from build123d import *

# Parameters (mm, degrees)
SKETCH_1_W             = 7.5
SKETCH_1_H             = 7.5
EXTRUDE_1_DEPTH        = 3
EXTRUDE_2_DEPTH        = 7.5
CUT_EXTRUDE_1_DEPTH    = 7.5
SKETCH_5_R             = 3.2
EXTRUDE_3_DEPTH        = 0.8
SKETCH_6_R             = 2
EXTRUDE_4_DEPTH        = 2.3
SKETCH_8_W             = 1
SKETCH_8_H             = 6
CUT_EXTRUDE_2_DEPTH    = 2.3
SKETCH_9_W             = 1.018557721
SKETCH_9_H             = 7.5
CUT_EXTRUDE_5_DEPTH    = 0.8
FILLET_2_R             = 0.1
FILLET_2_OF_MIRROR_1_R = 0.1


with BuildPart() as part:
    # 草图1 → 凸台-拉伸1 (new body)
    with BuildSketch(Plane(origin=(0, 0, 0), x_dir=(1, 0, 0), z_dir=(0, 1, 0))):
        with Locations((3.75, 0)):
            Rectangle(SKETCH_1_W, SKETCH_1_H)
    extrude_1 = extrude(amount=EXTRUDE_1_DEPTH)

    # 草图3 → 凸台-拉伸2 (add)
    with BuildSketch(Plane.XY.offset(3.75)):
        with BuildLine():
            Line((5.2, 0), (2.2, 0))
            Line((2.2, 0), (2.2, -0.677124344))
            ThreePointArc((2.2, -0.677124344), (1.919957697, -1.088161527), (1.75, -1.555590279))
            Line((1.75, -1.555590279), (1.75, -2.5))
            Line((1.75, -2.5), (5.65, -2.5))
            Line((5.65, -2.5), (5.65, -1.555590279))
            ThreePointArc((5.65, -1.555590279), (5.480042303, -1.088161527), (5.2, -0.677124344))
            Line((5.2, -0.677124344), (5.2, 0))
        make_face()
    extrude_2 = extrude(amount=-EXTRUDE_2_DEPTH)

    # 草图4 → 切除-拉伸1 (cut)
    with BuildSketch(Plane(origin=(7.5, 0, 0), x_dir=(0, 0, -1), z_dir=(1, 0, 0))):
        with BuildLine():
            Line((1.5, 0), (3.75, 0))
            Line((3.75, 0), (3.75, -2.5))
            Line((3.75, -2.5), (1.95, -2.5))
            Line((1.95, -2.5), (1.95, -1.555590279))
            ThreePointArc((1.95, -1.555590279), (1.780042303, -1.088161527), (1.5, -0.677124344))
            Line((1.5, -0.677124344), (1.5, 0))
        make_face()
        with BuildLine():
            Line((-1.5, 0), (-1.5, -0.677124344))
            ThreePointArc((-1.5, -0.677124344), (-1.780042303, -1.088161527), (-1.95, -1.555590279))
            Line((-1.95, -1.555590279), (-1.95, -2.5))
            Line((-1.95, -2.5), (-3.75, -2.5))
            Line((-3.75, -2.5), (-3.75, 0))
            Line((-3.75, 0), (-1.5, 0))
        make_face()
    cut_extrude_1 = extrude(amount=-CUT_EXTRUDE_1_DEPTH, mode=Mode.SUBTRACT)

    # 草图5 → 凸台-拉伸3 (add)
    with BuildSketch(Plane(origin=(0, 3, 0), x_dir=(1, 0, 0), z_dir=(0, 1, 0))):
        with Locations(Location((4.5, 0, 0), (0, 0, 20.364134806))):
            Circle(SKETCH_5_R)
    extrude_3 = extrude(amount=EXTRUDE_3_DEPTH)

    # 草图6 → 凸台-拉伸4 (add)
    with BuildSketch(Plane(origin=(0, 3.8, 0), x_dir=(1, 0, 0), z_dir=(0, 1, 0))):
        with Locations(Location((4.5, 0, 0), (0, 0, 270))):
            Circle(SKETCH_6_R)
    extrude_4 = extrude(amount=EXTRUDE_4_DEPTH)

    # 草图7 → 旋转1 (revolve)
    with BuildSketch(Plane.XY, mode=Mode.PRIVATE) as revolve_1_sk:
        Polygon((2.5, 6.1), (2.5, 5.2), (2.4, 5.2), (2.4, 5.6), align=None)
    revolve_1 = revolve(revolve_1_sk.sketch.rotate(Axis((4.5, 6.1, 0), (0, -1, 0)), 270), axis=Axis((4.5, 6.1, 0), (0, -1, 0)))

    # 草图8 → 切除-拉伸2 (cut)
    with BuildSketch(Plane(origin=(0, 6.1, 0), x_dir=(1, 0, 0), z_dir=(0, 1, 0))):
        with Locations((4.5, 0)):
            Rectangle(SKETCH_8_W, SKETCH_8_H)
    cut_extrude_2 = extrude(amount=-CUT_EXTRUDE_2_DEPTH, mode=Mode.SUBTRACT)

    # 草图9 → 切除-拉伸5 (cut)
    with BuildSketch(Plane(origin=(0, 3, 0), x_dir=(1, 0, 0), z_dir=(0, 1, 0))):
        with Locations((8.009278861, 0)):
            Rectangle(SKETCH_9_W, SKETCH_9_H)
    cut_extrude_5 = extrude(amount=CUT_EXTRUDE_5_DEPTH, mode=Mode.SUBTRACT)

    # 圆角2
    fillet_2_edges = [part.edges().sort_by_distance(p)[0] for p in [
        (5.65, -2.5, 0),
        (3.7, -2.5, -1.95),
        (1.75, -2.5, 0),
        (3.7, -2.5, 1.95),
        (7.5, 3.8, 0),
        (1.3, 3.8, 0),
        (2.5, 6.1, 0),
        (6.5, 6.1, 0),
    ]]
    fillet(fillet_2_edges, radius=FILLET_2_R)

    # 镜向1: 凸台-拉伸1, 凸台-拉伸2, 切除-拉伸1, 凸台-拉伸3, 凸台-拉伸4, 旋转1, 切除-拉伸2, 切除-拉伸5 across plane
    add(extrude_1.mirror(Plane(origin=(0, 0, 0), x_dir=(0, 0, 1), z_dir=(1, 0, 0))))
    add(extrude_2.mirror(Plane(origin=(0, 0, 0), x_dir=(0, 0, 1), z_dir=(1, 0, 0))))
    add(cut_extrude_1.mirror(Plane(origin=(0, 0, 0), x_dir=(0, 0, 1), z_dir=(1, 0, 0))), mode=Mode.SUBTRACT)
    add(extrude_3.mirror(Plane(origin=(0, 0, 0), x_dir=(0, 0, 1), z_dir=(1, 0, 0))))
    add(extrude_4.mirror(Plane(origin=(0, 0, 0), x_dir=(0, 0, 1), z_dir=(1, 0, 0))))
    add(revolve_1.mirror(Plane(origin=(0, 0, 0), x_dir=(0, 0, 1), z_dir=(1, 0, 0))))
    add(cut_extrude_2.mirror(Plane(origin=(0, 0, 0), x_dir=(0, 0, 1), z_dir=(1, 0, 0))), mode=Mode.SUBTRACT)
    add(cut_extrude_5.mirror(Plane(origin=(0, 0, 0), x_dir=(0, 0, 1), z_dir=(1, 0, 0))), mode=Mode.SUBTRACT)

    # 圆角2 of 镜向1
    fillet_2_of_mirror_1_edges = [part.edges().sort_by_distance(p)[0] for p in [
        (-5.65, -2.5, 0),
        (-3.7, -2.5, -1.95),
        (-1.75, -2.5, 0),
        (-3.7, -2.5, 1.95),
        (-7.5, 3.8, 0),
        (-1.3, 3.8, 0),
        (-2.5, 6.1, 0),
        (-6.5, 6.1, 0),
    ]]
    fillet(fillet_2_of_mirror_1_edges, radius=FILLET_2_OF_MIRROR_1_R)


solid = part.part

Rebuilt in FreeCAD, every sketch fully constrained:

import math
import FreeCAD as App
import Part
import Sketcher
Q = App.Units.Quantity


def edges_at(feature, points):
    """Names of the edges that pass closest to the given points."""
    edges = feature.Shape.Edges
    near = lambda p: min(range(len(edges)), key=lambda i: edges[i].distToShape(Part.Vertex(*p))[0])
    return sorted({f"Edge{near(p) + 1}" for p in points})


def add_polygon(sketch, points):
    """Adds a closed chain of lines whose ends are joined by coincident constraints."""
    first, n = sketch.GeometryCount, len(points)
    for a, b in zip(points, points[1:] + points[:1]):
        sketch.addGeometry(Part.LineSegment(App.Vector(*a, 0), App.Vector(*b, 0)), False)
    for i in range(n):
        sketch.addConstraint(Sketcher.Constraint("Coincident", first + i, 2, first + (i + 1) % n, 1))

doc = App.newDocument("Part")
params = doc.addObject("Spreadsheet::Sheet", "Params")
for row, (alias, value) in enumerate([
    ("sketch1_width", "7.5 mm"),
    ("pad1_length", "3 mm"),
    ("sketch2_radius", "2 mm"),
    ("sketch2_width", "3 mm"),
    ("sketch2_width2", "3.9 mm"),
    ("pad2_length", "7.5 mm"),
    ("sketch3_radius", "2 mm"),
    ("sketch3_width", "2.5 mm"),
    ("sketch3_height", "1.8 mm"),
    ("sketch3_height2", "2.25 mm"),
    ("pocket1_length", "7.5 mm"),
    ("sketch4_diameter", "6.4 mm"),
    ("pad3_length", "0.8 mm"),
    ("sketch5_diameter", "4 mm"),
    ("pad4_length", "2.3 mm"),
    ("sketch6_width", "0.1 mm"),
    ("sketch6_height", "0.9 mm"),
    ("sketch6_height2", "0.4 mm"),
    ("revolution_angle", "360 deg"),
    ("sketch7_width", "1 mm"),
    ("sketch7_height", "6 mm"),
    ("pocket2_length", "2.3 mm"),
    ("sketch8_height", "7.5 mm"),
    ("pocket3_length", "0.8 mm"),
    ("fillet_radius", "0.1 mm"),
    ("fillet2_radius", "0.1 mm"),
], start=1):
    params.set(f"A{row}", alias)
    params.set(f"B{row}", "=" + value)
    params.setAlias(f"B{row}", alias)

body = doc.addObject("PartDesign::Body", "Body")

sketch1 = body.newObject("Sketcher::SketchObject", "Sketch")
sketch1.AttachmentSupport = (doc.getObject("XZ_Plane"), [""])
sketch1.MapMode = "FlatFace"
add_polygon(sketch1, [(0, -4), (0, 4), (8, 4), (8, -4)])
sketch1.addConstraint([
    Sketcher.Constraint("Vertical", 0),
    Sketcher.Constraint("Horizontal", 1),
    Sketcher.Constraint("Vertical", 2),
    Sketcher.Constraint("Horizontal", 3),
    Sketcher.Constraint("Symmetric", 0, 2, 3, 2, -1, 1),
    Sketcher.Constraint("Equal", 3, 0),
    Sketcher.Constraint("DistanceX", 1, 1, 1, 2, Q("7.5 mm")),
])
sketch1.setExpression("Constraints[10]", "Params.sketch1_width")
pad1 = body.newObject("PartDesign::Pad", "Pad")
pad1.Profile = sketch1
pad1.setExpression("Length", "Params.pad1_length")
pad1.Reversed = True

sketch2 = body.newObject("Sketcher::SketchObject", "Sketch001")
sketch2.AttachmentSupport = (doc.getObject("XY_Plane"), [""])
sketch2.MapMode = "FlatFace"
sketch2.AttachmentOffset = App.Placement(App.Vector(0, 0, 3.75), App.Rotation())
sketch2.addGeometry([
    Part.LineSegment(App.Vector(5.2, 0, 0), App.Vector(2.2, 0, 0)),
    Part.LineSegment(App.Vector(2.2, 0, 0), App.Vector(2.2, -0.7, 0)),
    Part.ArcOfCircle(Part.Circle(App.Vector(3.7, -2, 0), App.Vector(0, 0, 1), 2), math.radians(139), math.radians(167)),
    Part.LineSegment(App.Vector(1.8, -1.6, 0), App.Vector(1.8, -2.5, 0)),
    Part.LineSegment(App.Vector(1.8, -2.5, 0), App.Vector(5.7, -2.5, 0)),
    Part.LineSegment(App.Vector(5.7, -2.5, 0), App.Vector(5.7, -1.6, 0)),
    Part.ArcOfCircle(Part.Circle(App.Vector(3.7, -2, 0), App.Vector(0, 0, 1), 2), math.radians(13), math.radians(41)),
    Part.LineSegment(App.Vector(5.2, -0.7, 0), App.Vector(5.2, 0, 0)),
], False)
sketch2.addConstraint([
    Sketcher.Constraint("Coincident", 0, 2, 1, 1),
    Sketcher.Constraint("Coincident", 1, 2, 2, 1),
    Sketcher.Constraint("Coincident", 2, 2, 3, 1),
    Sketcher.Constraint("Coincident", 3, 2, 4, 1),
    Sketcher.Constraint("Coincident", 4, 2, 5, 1),
    Sketcher.Constraint("Coincident", 5, 2, 6, 1),
    Sketcher.Constraint("Coincident", 6, 2, 7, 1),
    Sketcher.Constraint("Coincident", 7, 2, 0, 1),
    Sketcher.Constraint("Horizontal", 0),
    Sketcher.Constraint("Vertical", 1),
    Sketcher.Constraint("Vertical", 3),
    Sketcher.Constraint("Horizontal", 4),
    Sketcher.Constraint("Vertical", 5),
    Sketcher.Constraint("Vertical", 7),
    Sketcher.Constraint("Coincident", 6, 3, 2, 3),
    Sketcher.Constraint("Equal", 2, 6),
    Sketcher.Constraint("PointOnObject", 0, 2, -1),
    Sketcher.Constraint("Horizontal", 2, 2, 5, 2),
    Sketcher.Constraint("Horizontal", 1, 2, 6, 2),
    Sketcher.Constraint("Radius", 2, Q("2 mm")),
    Sketcher.Constraint("DistanceX", 0, 2, 0, 1, Q("3 mm")),
    Sketcher.Constraint("DistanceX", 4, 1, 4, 2, Q("3.9 mm")),
    Sketcher.Constraint("DistanceY", 2, 3, -1, 1, Q("2 mm")),
    Sketcher.Constraint("DistanceX", -1, 1, 2, 3, Q("3.7 mm")),
    Sketcher.Constraint("DistanceY", 3, 2, -1, 1, Q("2.5 mm")),
])
sketch2.setExpression("Constraints[19]", "Params.sketch2_radius")
sketch2.setExpression("Constraints[20]", "Params.sketch2_width")
sketch2.setExpression("Constraints[21]", "Params.sketch2_width2")
pad2 = body.newObject("PartDesign::Pad", "Pad001")
pad2.Profile = sketch2
pad2.setExpression("Length", "Params.pad2_length")
pad2.Reversed = True

sketch3 = body.newObject("Sketcher::SketchObject", "Sketch002")
sketch3.AttachmentSupport = (doc.getObject("YZ_Plane"), [""])
sketch3.MapMode = "FlatFace"
sketch3.AttachmentOffset = App.Placement(App.Vector(0, 0, 7.5), App.Rotation())
sketch3.addGeometry([
    Part.LineSegment(App.Vector(0, -3.8, 0), App.Vector(0, -1.5, 0)),
    Part.LineSegment(App.Vector(0, -1.5, 0), App.Vector(-0.7, -1.5, 0)),
    Part.ArcOfCircle(Part.Circle(App.Vector(-2, 0, 0), App.Vector(0, 0, 1), 2), math.radians(-77), math.radians(-49)),
    Part.LineSegment(App.Vector(-1.6, -1.9, 0), App.Vector(-2.5, -1.9, 0)),
    Part.LineSegment(App.Vector(-2.5, -1.9, 0), App.Vector(-2.5, -3.8, 0)),
    Part.LineSegment(App.Vector(-2.5, -3.8, 0), App.Vector(0, -3.8, 0)),
    Part.LineSegment(App.Vector(-0.7, 1.5, 0), App.Vector(0, 1.5, 0)),
    Part.LineSegment(App.Vector(0, 1.5, 0), App.Vector(0, 3.8, 0)),
    Part.LineSegment(App.Vector(0, 3.8, 0), App.Vector(-2.5, 3.8, 0)),
    Part.LineSegment(App.Vector(-2.5, 3.8, 0), App.Vector(-2.5, 1.9, 0)),
    Part.LineSegment(App.Vector(-2.5, 1.9, 0), App.Vector(-1.6, 1.9, 0)),
    Part.ArcOfCircle(Part.Circle(App.Vector(-2, 0, 0), App.Vector(0, 0, 1), 2), math.radians(49), math.radians(77)),
], False)
sketch3.addConstraint([
    Sketcher.Constraint("Coincident", 0, 2, 1, 1),
    Sketcher.Constraint("Coincident", 1, 2, 2, 2),
    Sketcher.Constraint("Coincident", 2, 1, 3, 1),
    Sketcher.Constraint("Coincident", 3, 2, 4, 1),
    Sketcher.Constraint("Coincident", 4, 2, 5, 1),
    Sketcher.Constraint("Coincident", 5, 2, 0, 1),
    Sketcher.Constraint("Coincident", 6, 2, 7, 1),
    Sketcher.Constraint("Coincident", 7, 2, 8, 1),
    Sketcher.Constraint("Coincident", 8, 2, 9, 1),
    Sketcher.Constraint("Coincident", 9, 2, 10, 1),
    Sketcher.Constraint("Coincident", 10, 2, 11, 2),
    Sketcher.Constraint("Coincident", 11, 1, 6, 1),
    Sketcher.Constraint("Vertical", 0),
    Sketcher.Constraint("Horizontal", 1),
    Sketcher.Constraint("Horizontal", 3),
    Sketcher.Constraint("Vertical", 4),
    Sketcher.Constraint("Horizontal", 5),
    Sketcher.Constraint("Horizontal", 6),
    Sketcher.Constraint("Vertical", 7),
    Sketcher.Constraint("Horizontal", 8),
    Sketcher.Constraint("Vertical", 9),
    Sketcher.Constraint("Horizontal", 10),
    Sketcher.Constraint("Coincident", 11, 3, 2, 3),
    Sketcher.Constraint("Equal", 2, 11),
    Sketcher.Constraint("Symmetric", 0, 2, 6, 2, -1, 1),
    Sketcher.Constraint("Symmetric", 5, 2, 7, 2, -1),
    Sketcher.Constraint("Symmetric", 3, 2, 9, 2, -1),
    Sketcher.Constraint("PointOnObject", 2, 3, -1),
    Sketcher.Constraint("Radius", 2, Q("2 mm")),
    Sketcher.Constraint("DistanceX", 5, 1, 5, 2, Q("2.5 mm")),
    Sketcher.Constraint("DistanceY", 4, 2, 4, 1, Q("1.8 mm")),
    Sketcher.Constraint("DistanceX", 2, 3, -1, 1, Q("2 mm")),
    Sketcher.Constraint("DistanceY", 0, 2, 6, 2, Q("3 mm")),
    Sketcher.Constraint("DistanceY", 0, 1, 0, 2, Q("2.25 mm")),
])
sketch3.setExpression("Constraints[28]", "Params.sketch3_radius")
sketch3.setExpression("Constraints[29]", "Params.sketch3_width")
sketch3.setExpression("Constraints[30]", "Params.sketch3_height")
sketch3.setExpression("Constraints[33]", "Params.sketch3_height2")
pocket1 = body.newObject("PartDesign::Pocket", "Pocket")
pocket1.Profile = sketch3
pocket1.setExpression("Length", "Params.pocket1_length")

sketch4 = body.newObject("Sketcher::SketchObject", "Sketch003")
sketch4.AttachmentSupport = (doc.getObject("XZ_Plane"), [""])
sketch4.MapMode = "FlatFace"
sketch4.AttachmentOffset = App.Placement(App.Vector(0, 0, -3), App.Rotation())
sketch4.addGeometry(Part.Circle(App.Vector(4.5, 0, 0), App.Vector(0, 0, 1), 3.2), False)
sketch4.addConstraint([
    Sketcher.Constraint("PointOnObject", 0, 3, -1),
    Sketcher.Constraint("Diameter", 0, Q("6.4 mm")),
    Sketcher.Constraint("DistanceX", -1, 1, 0, 3, Q("4.5 mm")),
])
sketch4.setExpression("Constraints[1]", "Params.sketch4_diameter")
pad3 = body.newObject("PartDesign::Pad", "Pad002")
pad3.Profile = sketch4
pad3.setExpression("Length", "Params.pad3_length")
pad3.Reversed = True

sketch5 = body.newObject("Sketcher::SketchObject", "Sketch004")
sketch5.AttachmentSupport = (doc.getObject("XZ_Plane"), [""])
sketch5.MapMode = "FlatFace"
sketch5.AttachmentOffset = App.Placement(App.Vector(0, 0, -3.8), App.Rotation())
sketch5.addGeometry(Part.Circle(App.Vector(4.5, 0, 0), App.Vector(0, 0, 1), 2), False)
sketch5.addConstraint([
    Sketcher.Constraint("PointOnObject", 0, 3, -1),
    Sketcher.Constraint("Diameter", 0, Q("4 mm")),
    Sketcher.Constraint("DistanceX", -1, 1, 0, 3, Q("4.5 mm")),
])
sketch5.setExpression("Constraints[1]", "Params.sketch5_diameter")
pad4 = body.newObject("PartDesign::Pad", "Pad003")
pad4.Profile = sketch5
pad4.setExpression("Length", "Params.pad4_length")
pad4.Reversed = True

sketch6 = body.newObject("Sketcher::SketchObject", "Sketch005")
sketch6.AttachmentSupport = (doc.getObject("XY_Plane"), [""])
sketch6.MapMode = "FlatFace"
add_polygon(sketch6, [(2.5, 5.2), (2.5, 6.1), (2.4, 5.6), (2.4, 5.2)])
sketch6.addGeometry(Part.LineSegment(App.Vector(4.5, 6.1, 0), App.Vector(4.5, 5.2, 0)), True)
sketch6.addConstraint([
    Sketcher.Constraint("Vertical", 0),
    Sketcher.Constraint("Vertical", 2),
    Sketcher.Constraint("Horizontal", 3),
    Sketcher.Constraint("Vertical", 4),
    Sketcher.Constraint("Horizontal", 0, 2, 4, 1),
    Sketcher.Constraint("Horizontal", 3, 2, 4, 2),
    Sketcher.Constraint("DistanceX", 3, 1, 3, 2, Q("0.1 mm")),
    Sketcher.Constraint("DistanceY", 0, 1, 0, 2, Q("0.9 mm")),
    Sketcher.Constraint("DistanceY", 2, 2, 2, 1, Q("0.4 mm")),
    Sketcher.Constraint("DistanceX", 0, 2, 4, 1, Q("2 mm")),
    Sketcher.Constraint("DistanceX", -1, 1, 0, 2, Q("2.5 mm")),
    Sketcher.Constraint("DistanceY", -1, 1, 0, 2, Q("6.1 mm")),
])
sketch6.setExpression("Constraints[10]", "Params.sketch6_width")
sketch6.setExpression("Constraints[11]", "Params.sketch6_height")
sketch6.setExpression("Constraints[12]", "Params.sketch6_height2")
revolution = body.newObject("PartDesign::Revolution", "Revolution")
revolution.Profile = sketch6
revolution.ReferenceAxis = (sketch6, ["Axis0"])
revolution.setExpression("Angle", "Params.revolution_angle")

sketch7 = body.newObject("Sketcher::SketchObject", "Sketch006")
sketch7.AttachmentSupport = (doc.getObject("XZ_Plane"), [""])
sketch7.MapMode = "FlatFace"
sketch7.AttachmentOffset = App.Placement(App.Vector(0, 0, -6.1), App.Rotation())
add_polygon(sketch7, [(4, -3), (4, 3), (5, 3), (5, -3)])
sketch7.addConstraint([
    Sketcher.Constraint("Vertical", 0),
    Sketcher.Constraint("Horizontal", 1),
    Sketcher.Constraint("Vertical", 2),
    Sketcher.Constraint("Horizontal", 3),
    Sketcher.Constraint("DistanceX", 1, 1, 1, 2, Q("1 mm")),
    Sketcher.Constraint("DistanceY", 0, 1, 0, 2, Q("6 mm")),
    Sketcher.Constraint("DistanceX", -1, 1, 0, 2, Q("4 mm")),
    Sketcher.Constraint("DistanceY", -1, 1, 0, 2, Q("3 mm")),
])
sketch7.setExpression("Constraints[8]", "Params.sketch7_width")
sketch7.setExpression("Constraints[9]", "Params.sketch7_height")
pocket2 = body.newObject("PartDesign::Pocket", "Pocket001")
pocket2.Profile = sketch7
pocket2.setExpression("Length", "Params.pocket2_length")
pocket2.Reversed = True

sketch8 = body.newObject("Sketcher::SketchObject", "Sketch007")
sketch8.AttachmentSupport = (doc.getObject("XZ_Plane"), [""])
sketch8.MapMode = "FlatFace"
sketch8.AttachmentOffset = App.Placement(App.Vector(0, 0, -3), App.Rotation())
add_polygon(sketch8, [(7.5, -3.8), (7.5, 3.8), (8.5, 3.8), (8.5, -3.8)])
sketch8.addConstraint([
    Sketcher.Constraint("Vertical", 0),
    Sketcher.Constraint("Horizontal", 1),
    Sketcher.Constraint("Vertical", 2),
    Sketcher.Constraint("Horizontal", 3),
    Sketcher.Constraint("DistanceY", 0, 1, 0, 2, Q("7.5 mm")),
    Sketcher.Constraint("DistanceX", -1, 1, 0, 2, Q("7.5 mm")),
    Sketcher.Constraint("DistanceY", -1, 1, 0, 2, Q("3.75 mm")),
    Sketcher.Constraint("DistanceX", 1, 1, 1, 2, Q("1.018558 mm")),
])
sketch8.setExpression("Constraints[8]", "Params.sketch8_height")
pocket3 = body.newObject("PartDesign::Pocket", "Pocket002")
pocket3.Profile = sketch8
pocket3.setExpression("Length", "Params.pocket3_length")
doc.recompute()

fillet = body.newObject("PartDesign::Fillet", "Fillet")
fillet.Base = (pocket3, edges_at(pocket3, [
    (5.65, -2.5, 0),
    (3.7, -2.5, -1.95),
    (1.75, -2.5, 0),
    (3.7, -2.5, 1.95),
    (7.5, 3.8, 0),
    (1.3, 3.8, 0),
    (2.5, 6.1, 0),
    (6.5, 6.1, 0),
]))
fillet.setExpression("Radius", "Params.fillet_radius")
doc.recompute()

mirrored = body.newObject("PartDesign::Mirrored", "Mirrored")
mirrored.Originals = [pad1, pad2, pocket1, pad3, pad4, revolution, pocket2, pocket3]
mirrored.MirrorPlane = (doc.getObject("YZ_Plane"), [""])
body.Tip = mirrored
doc.recompute()

fillet2 = body.newObject("PartDesign::Fillet", "Fillet001")
fillet2.Base = (mirrored, edges_at(mirrored, [
    (-5.65, -2.5, 0),
    (-3.7, -2.5, -1.95),
    (-1.75, -2.5, 0),
    (-3.7, -2.5, 1.95),
    (-7.5, 3.8, 0),
    (-1.3, 3.8, 0),
    (-2.5, 6.1, 0),
    (-6.5, 6.1, 0),
]))
fillet2.setExpression("Radius", "Params.fillet2_radius")

doc.recompute()
